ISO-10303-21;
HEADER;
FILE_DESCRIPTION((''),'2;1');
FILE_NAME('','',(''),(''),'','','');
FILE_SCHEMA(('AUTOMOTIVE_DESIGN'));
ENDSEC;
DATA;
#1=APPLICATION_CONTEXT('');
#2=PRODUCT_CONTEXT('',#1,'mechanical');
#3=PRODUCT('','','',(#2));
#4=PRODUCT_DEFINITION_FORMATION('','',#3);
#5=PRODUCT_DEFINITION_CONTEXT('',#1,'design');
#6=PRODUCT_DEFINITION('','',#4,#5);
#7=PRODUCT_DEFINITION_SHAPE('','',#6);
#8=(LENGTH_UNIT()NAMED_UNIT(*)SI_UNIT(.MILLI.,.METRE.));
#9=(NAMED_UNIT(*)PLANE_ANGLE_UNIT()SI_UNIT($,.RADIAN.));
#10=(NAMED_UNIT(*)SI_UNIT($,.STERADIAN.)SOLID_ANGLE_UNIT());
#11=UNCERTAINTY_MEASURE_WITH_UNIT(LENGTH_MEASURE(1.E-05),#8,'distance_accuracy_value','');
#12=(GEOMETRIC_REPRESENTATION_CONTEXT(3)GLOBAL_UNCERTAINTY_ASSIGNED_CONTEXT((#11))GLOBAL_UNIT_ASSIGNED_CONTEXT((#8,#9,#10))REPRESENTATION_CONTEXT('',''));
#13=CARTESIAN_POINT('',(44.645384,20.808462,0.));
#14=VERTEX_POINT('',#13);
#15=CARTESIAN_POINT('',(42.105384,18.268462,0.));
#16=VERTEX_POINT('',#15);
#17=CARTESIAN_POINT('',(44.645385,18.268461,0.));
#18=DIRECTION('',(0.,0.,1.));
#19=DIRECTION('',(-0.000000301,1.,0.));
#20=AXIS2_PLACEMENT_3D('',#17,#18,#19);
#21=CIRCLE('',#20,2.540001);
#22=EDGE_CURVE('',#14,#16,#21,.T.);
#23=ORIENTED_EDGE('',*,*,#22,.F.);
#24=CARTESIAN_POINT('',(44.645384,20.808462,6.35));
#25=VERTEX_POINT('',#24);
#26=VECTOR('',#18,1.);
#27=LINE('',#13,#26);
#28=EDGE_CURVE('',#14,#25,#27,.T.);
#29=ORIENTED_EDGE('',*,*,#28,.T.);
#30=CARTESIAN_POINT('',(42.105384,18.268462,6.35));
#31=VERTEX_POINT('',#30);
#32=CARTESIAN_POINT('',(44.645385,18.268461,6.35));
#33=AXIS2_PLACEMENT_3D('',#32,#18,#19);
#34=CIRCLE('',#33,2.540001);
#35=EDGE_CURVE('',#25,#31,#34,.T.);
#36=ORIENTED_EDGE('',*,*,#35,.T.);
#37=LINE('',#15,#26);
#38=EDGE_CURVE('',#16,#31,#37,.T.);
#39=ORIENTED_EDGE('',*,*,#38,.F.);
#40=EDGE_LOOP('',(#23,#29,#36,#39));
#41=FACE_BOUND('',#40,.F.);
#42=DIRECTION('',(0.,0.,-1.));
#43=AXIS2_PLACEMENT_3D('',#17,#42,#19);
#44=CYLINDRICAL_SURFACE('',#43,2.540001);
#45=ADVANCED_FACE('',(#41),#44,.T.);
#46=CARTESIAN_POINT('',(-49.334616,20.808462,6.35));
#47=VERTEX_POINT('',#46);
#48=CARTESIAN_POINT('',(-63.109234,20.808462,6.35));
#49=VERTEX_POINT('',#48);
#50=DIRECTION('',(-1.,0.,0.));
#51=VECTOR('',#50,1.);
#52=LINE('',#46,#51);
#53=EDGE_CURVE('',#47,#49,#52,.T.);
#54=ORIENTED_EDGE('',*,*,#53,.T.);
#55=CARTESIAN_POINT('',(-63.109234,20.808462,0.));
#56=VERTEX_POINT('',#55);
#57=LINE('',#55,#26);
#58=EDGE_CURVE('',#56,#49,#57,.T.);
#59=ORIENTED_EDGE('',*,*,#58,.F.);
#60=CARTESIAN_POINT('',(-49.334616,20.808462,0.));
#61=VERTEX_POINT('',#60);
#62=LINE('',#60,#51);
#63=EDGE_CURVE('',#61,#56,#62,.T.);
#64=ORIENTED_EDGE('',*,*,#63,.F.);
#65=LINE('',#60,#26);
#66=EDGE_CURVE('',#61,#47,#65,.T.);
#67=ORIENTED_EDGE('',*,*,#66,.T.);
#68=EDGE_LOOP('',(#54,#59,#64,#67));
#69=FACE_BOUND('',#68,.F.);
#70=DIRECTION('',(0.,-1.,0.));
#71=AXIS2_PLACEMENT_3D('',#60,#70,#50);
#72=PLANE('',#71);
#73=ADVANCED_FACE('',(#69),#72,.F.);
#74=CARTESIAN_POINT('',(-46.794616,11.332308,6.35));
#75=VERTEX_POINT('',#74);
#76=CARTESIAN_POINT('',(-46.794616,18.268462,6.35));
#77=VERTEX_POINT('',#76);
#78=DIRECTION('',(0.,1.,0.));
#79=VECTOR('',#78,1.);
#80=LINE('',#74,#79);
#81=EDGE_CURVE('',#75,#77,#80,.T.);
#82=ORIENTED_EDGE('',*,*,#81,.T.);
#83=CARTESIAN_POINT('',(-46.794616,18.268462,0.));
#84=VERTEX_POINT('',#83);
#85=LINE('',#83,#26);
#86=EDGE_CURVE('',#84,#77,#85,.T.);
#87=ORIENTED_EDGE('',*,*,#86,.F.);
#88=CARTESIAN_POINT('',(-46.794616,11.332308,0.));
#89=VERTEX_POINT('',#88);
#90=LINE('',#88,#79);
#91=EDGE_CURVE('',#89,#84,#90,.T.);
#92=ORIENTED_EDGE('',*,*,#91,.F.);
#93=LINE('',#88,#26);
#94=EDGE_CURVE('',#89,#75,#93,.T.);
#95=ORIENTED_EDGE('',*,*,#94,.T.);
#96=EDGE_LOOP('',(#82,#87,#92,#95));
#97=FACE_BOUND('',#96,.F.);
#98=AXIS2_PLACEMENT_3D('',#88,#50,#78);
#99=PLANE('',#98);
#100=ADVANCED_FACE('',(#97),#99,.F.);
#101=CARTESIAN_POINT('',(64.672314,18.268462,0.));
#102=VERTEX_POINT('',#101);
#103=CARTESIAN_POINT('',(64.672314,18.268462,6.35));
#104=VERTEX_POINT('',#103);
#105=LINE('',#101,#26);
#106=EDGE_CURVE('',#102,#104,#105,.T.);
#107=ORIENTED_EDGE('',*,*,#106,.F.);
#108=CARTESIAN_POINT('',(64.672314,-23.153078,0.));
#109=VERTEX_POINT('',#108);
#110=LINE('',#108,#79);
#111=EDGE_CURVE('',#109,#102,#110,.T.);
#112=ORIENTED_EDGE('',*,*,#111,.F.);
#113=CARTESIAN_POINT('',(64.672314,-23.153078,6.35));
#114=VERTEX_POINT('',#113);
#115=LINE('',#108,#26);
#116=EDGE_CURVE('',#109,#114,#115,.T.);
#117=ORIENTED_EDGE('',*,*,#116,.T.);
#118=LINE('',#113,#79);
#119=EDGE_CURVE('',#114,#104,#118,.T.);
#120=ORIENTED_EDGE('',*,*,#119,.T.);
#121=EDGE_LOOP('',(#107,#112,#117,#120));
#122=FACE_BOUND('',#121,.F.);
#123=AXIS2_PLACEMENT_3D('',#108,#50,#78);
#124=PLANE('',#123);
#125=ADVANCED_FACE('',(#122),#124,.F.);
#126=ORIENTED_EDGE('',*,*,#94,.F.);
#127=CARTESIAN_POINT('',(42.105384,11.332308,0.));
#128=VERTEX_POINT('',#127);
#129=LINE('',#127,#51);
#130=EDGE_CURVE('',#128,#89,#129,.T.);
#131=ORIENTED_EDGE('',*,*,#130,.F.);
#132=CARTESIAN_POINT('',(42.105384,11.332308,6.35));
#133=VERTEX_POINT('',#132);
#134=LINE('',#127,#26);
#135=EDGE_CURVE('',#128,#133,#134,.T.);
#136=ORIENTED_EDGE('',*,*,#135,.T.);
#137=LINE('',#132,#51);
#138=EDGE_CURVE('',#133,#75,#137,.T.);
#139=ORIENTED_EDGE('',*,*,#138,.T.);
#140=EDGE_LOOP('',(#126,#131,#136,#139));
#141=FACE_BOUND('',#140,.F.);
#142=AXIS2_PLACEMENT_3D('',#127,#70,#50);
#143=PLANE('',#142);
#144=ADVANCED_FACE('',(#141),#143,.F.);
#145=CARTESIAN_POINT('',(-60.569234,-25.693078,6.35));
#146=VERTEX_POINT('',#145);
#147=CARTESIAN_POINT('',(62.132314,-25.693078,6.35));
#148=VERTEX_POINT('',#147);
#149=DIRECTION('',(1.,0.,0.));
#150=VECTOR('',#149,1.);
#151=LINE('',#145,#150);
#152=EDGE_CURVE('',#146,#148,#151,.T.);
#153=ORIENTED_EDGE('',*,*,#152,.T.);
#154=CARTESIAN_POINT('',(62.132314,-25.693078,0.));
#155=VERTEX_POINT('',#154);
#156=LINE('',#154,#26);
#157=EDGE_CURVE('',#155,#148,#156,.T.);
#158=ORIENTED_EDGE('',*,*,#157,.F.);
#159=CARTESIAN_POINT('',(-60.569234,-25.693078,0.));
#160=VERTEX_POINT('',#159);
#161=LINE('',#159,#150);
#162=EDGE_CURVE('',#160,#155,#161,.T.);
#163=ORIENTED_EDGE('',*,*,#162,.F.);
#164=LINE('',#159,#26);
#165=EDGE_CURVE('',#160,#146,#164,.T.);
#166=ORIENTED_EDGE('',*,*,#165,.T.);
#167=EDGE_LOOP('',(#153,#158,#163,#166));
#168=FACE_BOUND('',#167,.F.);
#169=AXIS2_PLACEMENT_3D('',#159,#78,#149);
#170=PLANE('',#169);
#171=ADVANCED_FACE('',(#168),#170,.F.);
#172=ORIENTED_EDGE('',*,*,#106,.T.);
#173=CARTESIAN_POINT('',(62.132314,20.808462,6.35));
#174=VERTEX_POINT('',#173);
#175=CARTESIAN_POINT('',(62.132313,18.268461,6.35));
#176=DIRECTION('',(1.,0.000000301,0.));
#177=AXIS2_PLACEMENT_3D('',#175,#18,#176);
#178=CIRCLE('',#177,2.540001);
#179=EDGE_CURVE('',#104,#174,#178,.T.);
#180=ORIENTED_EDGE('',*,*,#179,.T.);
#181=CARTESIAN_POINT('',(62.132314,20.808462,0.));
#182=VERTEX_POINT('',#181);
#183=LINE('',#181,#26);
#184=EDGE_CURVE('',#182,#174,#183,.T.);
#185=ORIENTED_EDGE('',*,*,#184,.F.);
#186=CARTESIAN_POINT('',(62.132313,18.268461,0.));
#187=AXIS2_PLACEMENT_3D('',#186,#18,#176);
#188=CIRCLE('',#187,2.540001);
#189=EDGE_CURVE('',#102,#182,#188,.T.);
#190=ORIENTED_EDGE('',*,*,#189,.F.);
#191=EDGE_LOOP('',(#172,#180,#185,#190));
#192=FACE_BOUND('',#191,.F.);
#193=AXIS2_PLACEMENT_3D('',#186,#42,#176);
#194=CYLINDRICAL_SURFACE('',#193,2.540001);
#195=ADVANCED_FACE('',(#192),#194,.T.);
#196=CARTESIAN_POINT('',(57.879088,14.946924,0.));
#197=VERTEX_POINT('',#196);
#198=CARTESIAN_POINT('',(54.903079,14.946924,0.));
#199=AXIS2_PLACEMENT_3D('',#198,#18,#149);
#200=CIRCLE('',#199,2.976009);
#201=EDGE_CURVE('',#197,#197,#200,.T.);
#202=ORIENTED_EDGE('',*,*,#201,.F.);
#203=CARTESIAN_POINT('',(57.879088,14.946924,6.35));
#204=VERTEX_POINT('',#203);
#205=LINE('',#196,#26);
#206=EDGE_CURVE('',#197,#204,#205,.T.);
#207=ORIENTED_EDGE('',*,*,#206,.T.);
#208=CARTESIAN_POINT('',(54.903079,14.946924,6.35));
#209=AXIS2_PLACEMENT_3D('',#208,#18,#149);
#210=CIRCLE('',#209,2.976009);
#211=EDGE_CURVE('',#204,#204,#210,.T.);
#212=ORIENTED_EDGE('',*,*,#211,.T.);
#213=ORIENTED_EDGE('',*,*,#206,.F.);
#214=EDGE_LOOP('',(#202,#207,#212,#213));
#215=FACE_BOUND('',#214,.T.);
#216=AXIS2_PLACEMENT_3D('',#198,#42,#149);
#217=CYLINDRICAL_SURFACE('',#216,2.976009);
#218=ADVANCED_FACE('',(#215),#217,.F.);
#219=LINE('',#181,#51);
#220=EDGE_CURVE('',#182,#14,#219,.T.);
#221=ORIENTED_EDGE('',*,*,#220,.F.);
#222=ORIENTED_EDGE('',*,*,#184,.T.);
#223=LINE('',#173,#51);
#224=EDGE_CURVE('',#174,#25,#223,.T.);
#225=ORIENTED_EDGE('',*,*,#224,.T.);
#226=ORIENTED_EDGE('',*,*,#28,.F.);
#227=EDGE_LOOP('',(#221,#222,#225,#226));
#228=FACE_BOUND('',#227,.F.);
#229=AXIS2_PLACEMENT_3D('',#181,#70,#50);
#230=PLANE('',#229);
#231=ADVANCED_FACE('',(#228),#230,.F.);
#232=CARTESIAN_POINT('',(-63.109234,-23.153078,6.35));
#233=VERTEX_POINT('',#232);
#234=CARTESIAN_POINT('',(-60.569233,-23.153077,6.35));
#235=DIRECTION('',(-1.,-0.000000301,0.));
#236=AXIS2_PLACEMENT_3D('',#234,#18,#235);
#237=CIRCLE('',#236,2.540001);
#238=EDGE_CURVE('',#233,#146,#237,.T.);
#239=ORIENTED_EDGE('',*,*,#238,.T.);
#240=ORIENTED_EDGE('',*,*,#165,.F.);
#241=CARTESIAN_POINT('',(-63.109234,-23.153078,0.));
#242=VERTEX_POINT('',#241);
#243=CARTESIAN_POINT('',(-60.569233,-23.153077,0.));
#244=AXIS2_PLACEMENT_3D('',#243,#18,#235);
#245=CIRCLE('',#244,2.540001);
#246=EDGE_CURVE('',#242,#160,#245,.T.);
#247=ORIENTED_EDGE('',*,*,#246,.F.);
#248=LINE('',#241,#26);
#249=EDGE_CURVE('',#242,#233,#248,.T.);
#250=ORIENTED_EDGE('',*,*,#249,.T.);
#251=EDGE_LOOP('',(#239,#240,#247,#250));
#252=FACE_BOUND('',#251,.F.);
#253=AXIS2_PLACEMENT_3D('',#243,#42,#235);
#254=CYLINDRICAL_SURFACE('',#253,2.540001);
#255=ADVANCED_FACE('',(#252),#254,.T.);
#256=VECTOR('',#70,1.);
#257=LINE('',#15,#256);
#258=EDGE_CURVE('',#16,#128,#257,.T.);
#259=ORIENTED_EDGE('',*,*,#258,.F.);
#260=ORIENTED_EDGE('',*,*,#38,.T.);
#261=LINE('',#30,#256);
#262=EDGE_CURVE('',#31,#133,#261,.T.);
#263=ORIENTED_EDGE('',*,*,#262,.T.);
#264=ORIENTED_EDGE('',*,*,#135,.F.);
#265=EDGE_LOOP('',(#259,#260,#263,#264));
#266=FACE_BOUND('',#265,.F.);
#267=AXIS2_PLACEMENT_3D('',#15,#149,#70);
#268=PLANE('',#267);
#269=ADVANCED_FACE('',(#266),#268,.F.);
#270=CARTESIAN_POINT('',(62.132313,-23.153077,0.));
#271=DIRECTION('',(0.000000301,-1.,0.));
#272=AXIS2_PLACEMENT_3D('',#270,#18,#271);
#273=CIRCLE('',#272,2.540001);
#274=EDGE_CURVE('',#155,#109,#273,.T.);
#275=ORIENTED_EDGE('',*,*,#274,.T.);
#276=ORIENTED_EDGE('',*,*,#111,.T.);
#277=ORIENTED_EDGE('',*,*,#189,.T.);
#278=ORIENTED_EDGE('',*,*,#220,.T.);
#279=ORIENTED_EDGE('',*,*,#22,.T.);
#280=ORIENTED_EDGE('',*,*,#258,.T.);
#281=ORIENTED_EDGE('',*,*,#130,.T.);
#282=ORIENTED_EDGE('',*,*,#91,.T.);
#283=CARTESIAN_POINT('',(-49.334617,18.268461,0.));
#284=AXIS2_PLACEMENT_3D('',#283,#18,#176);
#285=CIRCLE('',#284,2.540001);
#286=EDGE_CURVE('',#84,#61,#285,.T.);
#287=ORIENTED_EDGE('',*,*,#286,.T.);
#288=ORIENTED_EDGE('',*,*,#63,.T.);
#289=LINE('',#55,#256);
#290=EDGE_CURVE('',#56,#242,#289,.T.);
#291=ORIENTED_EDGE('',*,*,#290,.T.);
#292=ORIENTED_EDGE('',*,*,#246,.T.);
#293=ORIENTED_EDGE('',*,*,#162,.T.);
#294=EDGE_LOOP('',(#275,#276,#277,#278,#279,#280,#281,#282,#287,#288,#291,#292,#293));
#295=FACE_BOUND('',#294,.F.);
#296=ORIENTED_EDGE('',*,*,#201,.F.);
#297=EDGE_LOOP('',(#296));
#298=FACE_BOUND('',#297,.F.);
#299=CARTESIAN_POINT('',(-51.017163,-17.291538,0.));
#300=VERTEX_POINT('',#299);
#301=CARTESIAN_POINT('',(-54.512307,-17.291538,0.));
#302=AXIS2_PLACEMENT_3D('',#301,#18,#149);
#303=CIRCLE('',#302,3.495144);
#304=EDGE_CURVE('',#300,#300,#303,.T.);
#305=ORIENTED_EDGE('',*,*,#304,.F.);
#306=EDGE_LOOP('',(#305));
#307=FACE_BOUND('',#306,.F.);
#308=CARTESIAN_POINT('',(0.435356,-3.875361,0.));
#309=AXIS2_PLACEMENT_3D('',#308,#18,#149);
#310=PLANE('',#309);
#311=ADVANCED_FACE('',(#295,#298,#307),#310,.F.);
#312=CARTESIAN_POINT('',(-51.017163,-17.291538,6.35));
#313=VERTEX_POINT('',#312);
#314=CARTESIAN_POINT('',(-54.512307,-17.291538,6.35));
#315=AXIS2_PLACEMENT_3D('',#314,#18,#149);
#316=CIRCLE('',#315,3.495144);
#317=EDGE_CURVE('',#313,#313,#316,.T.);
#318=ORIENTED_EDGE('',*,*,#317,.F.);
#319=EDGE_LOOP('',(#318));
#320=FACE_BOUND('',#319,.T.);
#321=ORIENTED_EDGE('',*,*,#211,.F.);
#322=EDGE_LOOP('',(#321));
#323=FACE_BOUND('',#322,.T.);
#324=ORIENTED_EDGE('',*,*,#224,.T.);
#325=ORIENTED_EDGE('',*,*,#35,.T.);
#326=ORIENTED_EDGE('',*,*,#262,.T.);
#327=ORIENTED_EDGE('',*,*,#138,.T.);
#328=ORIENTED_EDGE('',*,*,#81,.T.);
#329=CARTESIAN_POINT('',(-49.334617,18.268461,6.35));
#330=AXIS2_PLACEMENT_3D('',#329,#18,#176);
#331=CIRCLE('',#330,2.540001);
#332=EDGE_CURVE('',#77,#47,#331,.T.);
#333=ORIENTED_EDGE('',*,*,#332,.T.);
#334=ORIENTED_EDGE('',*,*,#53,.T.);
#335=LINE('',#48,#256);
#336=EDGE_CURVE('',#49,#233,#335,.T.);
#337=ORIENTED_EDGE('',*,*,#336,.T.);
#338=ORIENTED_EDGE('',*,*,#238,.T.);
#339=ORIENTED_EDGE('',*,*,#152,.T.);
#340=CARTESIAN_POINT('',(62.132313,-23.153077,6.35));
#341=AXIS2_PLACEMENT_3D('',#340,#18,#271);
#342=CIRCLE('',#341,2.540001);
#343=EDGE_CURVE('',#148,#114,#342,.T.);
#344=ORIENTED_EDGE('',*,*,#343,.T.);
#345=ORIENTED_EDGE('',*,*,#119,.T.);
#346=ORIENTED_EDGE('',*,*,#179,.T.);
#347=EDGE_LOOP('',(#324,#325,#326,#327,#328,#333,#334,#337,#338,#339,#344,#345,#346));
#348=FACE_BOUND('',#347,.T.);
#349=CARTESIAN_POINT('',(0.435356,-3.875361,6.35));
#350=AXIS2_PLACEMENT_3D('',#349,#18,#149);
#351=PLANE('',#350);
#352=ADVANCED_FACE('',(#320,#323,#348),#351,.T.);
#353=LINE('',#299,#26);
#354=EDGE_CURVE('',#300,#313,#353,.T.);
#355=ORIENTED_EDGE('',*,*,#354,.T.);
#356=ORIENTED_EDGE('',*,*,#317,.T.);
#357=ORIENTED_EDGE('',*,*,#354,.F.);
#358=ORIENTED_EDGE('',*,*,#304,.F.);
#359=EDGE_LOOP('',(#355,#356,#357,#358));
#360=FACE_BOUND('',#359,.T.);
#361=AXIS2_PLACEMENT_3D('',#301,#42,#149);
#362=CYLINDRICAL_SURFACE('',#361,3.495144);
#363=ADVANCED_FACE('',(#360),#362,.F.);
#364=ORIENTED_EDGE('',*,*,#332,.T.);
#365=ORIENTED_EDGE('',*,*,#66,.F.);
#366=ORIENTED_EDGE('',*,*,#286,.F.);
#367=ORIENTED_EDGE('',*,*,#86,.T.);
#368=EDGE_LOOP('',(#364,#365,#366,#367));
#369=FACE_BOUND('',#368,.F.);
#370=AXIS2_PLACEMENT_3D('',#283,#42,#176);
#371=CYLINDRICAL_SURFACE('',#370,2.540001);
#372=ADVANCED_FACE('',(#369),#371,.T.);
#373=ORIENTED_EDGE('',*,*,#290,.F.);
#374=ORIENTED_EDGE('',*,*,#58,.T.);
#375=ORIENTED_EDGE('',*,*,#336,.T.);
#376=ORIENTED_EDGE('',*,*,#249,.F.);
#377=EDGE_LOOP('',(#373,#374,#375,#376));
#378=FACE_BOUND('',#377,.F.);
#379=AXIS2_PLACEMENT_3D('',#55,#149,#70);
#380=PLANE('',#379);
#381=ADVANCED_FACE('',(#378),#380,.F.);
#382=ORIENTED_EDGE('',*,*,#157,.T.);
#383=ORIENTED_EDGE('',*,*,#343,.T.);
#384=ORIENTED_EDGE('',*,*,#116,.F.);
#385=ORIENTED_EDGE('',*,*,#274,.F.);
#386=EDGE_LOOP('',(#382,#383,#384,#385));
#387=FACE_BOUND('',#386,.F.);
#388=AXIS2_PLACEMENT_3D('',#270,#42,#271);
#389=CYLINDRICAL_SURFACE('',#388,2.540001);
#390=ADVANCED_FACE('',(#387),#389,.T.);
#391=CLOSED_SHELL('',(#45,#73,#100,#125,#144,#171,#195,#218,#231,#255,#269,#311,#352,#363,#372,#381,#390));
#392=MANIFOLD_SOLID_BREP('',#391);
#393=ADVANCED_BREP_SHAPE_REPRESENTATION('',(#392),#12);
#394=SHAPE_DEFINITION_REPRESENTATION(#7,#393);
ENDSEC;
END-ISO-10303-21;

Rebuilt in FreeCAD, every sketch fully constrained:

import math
import FreeCAD as App
import Part
import Sketcher
Q = App.Units.Quantity

doc = App.newDocument("Part")
params = doc.addObject("Spreadsheet::Sheet", "Params")
for row, (alias, value) in enumerate([
    ("sketch1_radius", "0.1 in"),
    ("sketch1_width", "3.5 in"),
    ("pad1_length", "0.25 in"),
], start=1):
    params.set(f"A{row}", alias)
    params.set(f"B{row}", "=" + value)
    params.setAlias(f"B{row}", alias)

body = doc.addObject("PartDesign::Body", "Body")

# Sketch on XY plane
sketch1 = body.newObject("Sketcher::SketchObject", "Sketch")
sketch1.AttachmentSupport = (doc.getObject("XY_Plane"), [""])
sketch1.MapMode = "FlatFace"
sketch1.addGeometry(Part.LineSegment(App.Vector(-49.3, 20.8, 0), App.Vector(-63.1, 20.8, 0)), False)
sketch1.addGeometry(Part.LineSegment(App.Vector(-63.1, 20.8, 0), App.Vector(-63.1, -23.2, 0)), False)
sketch1.addGeometry(Part.ArcOfCircle(Part.Circle(App.Vector(-60.6, -23.2, 0), App.Vector(0, 0, 1), 2.5), math.radians(-180), math.radians(-90)), False)
sketch1.addGeometry(Part.LineSegment(App.Vector(-60.6, -25.7, 0), App.Vector(62.1, -25.7, 0)), False)
sketch1.addGeometry(Part.ArcOfCircle(Part.Circle(App.Vector(62.1, -23.2, 0), App.Vector(0, 0, 1), 2.5), math.radians(-90), math.radians(0)), False)
sketch1.addGeometry(Part.LineSegment(App.Vector(64.7, -23.2, 0), App.Vector(64.7, 18.3, 0)), False)
sketch1.addGeometry(Part.ArcOfCircle(Part.Circle(App.Vector(62.1, 18.3, 0), App.Vector(0, 0, 1), 2.5), math.radians(0), math.radians(90)), False)
sketch1.addGeometry(Part.LineSegment(App.Vector(62.1, 20.8, 0), App.Vector(44.6, 20.8, 0)), False)
sketch1.addGeometry(Part.ArcOfCircle(Part.Circle(App.Vector(44.6, 18.3, 0), App.Vector(0, 0, 1), 2.5), math.radians(90), math.radians(180)), False)
sketch1.addGeometry(Part.LineSegment(App.Vector(42.1, 18.3, 0), App.Vector(42.1, 11.3, 0)), False)
sketch1.addGeometry(Part.LineSegment(App.Vector(42.1, 11.3, 0), App.Vector(-46.8, 11.3, 0)), False)
sketch1.addGeometry(Part.LineSegment(App.Vector(-46.8, 11.3, 0), App.Vector(-46.8, 18.3, 0)), False)
sketch1.addGeometry(Part.ArcOfCircle(Part.Circle(App.Vector(-49.3, 18.3, 0), App.Vector(0, 0, 1), 2.5), math.radians(0), math.radians(90)), False)
sketch1.addGeometry(Part.Circle(App.Vector(-54.5, -17.3, 0), App.Vector(0, 0, 1), 3.5), False)
sketch1.addGeometry(Part.Circle(App.Vector(54.9, 14.9, 0), App.Vector(0, 0, 1), 3), False)
sketch1.addConstraint(Sketcher.Constraint("Coincident", 0, 2, 1, 1))
sketch1.addConstraint(Sketcher.Constraint("Tangent", 1, 2, 2, 1))
sketch1.addConstraint(Sketcher.Constraint("Tangent", 2, 2, 3, 1))
sketch1.addConstraint(Sketcher.Constraint("Tangent", 3, 2, 4, 1))
sketch1.addConstraint(Sketcher.Constraint("Tangent", 4, 2, 5, 1))
sketch1.addConstraint(Sketcher.Constraint("Tangent", 5, 2, 6, 1))
sketch1.addConstraint(Sketcher.Constraint("Tangent", 6, 2, 7, 1))
sketch1.addConstraint(Sketcher.Constraint("Tangent", 7, 2, 8, 1))
sketch1.addConstraint(Sketcher.Constraint("Tangent", 8, 2, 9, 1))
sketch1.addConstraint(Sketcher.Constraint("Coincident", 9, 2, 10, 1))
sketch1.addConstraint(Sketcher.Constraint("Coincident", 10, 2, 11, 1))
sketch1.addConstraint(Sketcher.Constraint("Tangent", 11, 2, 12, 1))
sketch1.addConstraint(Sketcher.Constraint("Tangent", 12, 2, 0, 1))
sketch1.addConstraint(Sketcher.Constraint("Horizontal", 0))
sketch1.addConstraint(Sketcher.Constraint("Vertical", 1))
sketch1.addConstraint(Sketcher.Constraint("Horizontal", 3))
sketch1.addConstraint(Sketcher.Constraint("Vertical", 5))
sketch1.addConstraint(Sketcher.Constraint("Horizontal", 7))
sketch1.addConstraint(Sketcher.Constraint("Vertical", 9))
sketch1.addConstraint(Sketcher.Constraint("Horizontal", 10))
sketch1.addConstraint(Sketcher.Constraint("Vertical", 11))
sketch1.addConstraint(Sketcher.Constraint("Equal", 2, 4))
sketch1.addConstraint(Sketcher.Constraint("Equal", 4, 6))
sketch1.addConstraint(Sketcher.Constraint("Equal", 6, 8))
sketch1.addConstraint(Sketcher.Constraint("Equal", 8, 12))
sketch1.addConstraint(Sketcher.Constraint("Horizontal", 8, 3, 12, 3))
sketch1.addConstraint(Sketcher.Constraint("Radius", 2, Q("0.1 in")))
sketch1.addConstraint(Sketcher.Constraint("DistanceX", 10, 2, 10, 1, Q("3.5 in")))
sketch1.addConstraint(Sketcher.Constraint("DistanceY", 13, 3, 12, 3, Q("1.4 in")))
sketch1.addConstraint(Sketcher.Constraint("DistanceY", 4, 3, 14, 3, Q("1.5 in")))
sketch1.addConstraint(Sketcher.Constraint("Diameter", 13, Q("6.990288 mm")))
sketch1.addConstraint(Sketcher.Constraint("Diameter", 14, Q("5.952018 mm")))
sketch1.addConstraint(Sketcher.Constraint("DistanceX", 0, 2, 0, 1, Q("13.774618 mm")))
sketch1.addConstraint(Sketcher.Constraint("DistanceX", 3, 1, 3, 2, Q("122.701548 mm")))
sketch1.addConstraint(Sketcher.Constraint("DistanceY", 1, 2, 1, 1, Q("43.96154 mm")))
sketch1.addConstraint(Sketcher.Constraint("DistanceY", 9, 2, 9, 1, Q("6.936154 mm")))
sketch1.addConstraint(Sketcher.Constraint("DistanceY", -1, 1, 6, 3, Q("18.268461 mm")))
sketch1.addConstraint(Sketcher.Constraint("DistanceX", -1, 1, 14, 3, Q("54.903079 mm")))
sketch1.addConstraint(Sketcher.Constraint("DistanceX", 13, 3, 12, 3, Q("5.17769 mm")))
sketch1.addConstraint(Sketcher.Constraint("DistanceX", 2, 3, -1, 1, Q("60.569233 mm")))
sketch1.setExpression("Constraints[26]", "Params.sketch1_radius")
sketch1.setExpression("Constraints[27]", "Params.sketch1_width")
pad1 = body.newObject("PartDesign::Pad", "Pad")
pad1.Profile = sketch1
pad1.setExpression("Length", "Params.pad1_length")

doc.recompute()
